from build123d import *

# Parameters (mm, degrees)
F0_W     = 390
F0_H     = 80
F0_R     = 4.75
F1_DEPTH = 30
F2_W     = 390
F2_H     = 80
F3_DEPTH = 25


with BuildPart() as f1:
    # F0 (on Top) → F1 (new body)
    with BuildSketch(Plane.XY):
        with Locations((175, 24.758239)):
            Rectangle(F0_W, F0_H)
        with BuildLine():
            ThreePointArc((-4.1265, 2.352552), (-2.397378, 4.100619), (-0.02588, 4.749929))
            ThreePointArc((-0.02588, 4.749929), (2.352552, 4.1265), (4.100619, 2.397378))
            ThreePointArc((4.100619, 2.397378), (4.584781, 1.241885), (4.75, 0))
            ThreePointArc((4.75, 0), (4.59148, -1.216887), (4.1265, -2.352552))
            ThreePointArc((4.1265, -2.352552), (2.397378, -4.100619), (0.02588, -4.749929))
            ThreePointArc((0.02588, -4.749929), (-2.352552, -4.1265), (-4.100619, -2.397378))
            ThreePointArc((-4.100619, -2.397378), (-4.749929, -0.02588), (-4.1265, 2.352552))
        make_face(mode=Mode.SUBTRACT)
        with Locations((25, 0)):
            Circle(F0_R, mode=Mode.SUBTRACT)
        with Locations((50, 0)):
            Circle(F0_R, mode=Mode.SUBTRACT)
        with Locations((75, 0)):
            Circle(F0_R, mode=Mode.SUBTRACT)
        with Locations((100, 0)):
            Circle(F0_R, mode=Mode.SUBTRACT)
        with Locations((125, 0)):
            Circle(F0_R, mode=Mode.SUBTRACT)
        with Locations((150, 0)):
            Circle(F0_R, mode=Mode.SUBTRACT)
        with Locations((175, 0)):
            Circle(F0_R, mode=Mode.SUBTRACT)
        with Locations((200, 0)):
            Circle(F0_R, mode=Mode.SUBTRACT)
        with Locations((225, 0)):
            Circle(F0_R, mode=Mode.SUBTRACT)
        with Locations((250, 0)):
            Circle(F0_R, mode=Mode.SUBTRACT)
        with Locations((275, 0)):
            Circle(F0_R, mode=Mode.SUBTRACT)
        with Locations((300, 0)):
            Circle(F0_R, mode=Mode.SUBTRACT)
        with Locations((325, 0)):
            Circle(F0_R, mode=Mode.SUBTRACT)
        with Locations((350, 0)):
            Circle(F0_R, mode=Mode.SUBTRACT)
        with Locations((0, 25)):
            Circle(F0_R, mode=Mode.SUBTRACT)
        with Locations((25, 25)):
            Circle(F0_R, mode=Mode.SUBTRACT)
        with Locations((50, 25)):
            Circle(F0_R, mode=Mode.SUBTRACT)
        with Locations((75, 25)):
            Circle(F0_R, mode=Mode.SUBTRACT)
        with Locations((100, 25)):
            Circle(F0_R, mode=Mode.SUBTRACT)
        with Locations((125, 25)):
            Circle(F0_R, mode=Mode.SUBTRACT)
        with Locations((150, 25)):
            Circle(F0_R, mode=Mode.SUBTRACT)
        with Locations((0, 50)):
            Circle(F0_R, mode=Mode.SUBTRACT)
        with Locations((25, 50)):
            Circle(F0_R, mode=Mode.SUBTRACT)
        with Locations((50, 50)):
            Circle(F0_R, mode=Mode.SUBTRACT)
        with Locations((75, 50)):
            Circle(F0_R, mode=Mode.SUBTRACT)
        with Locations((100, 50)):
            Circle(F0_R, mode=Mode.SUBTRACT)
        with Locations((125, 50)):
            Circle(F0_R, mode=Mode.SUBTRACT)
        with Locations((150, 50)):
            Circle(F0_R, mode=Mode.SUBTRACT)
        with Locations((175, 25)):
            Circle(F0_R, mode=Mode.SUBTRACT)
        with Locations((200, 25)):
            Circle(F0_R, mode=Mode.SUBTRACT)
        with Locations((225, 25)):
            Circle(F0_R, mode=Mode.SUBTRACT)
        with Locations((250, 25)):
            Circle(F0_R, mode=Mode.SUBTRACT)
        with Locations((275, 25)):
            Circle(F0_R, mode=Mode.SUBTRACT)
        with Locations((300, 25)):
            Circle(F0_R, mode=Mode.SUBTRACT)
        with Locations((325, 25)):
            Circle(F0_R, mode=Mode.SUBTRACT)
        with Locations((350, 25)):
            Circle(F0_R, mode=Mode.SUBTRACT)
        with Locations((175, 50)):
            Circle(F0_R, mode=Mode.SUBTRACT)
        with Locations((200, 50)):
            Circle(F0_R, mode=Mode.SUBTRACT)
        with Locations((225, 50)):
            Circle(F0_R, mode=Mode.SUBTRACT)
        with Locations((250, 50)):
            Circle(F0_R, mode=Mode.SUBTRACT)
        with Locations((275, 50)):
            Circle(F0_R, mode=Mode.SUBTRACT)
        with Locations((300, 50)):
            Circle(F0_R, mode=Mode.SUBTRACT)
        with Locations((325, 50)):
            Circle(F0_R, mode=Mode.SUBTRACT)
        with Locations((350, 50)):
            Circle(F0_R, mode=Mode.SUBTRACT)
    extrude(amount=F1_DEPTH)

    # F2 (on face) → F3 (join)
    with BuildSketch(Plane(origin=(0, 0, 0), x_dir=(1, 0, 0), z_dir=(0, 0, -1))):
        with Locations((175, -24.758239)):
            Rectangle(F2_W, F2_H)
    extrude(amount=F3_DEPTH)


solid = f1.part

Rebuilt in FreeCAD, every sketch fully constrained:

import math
import FreeCAD as App
import Part
import Sketcher

V = App.Vector
Q = App.Units.Quantity

doc = App.newDocument("Part")
params = doc.addObject("Spreadsheet::Sheet", "Params")
for row, (alias, value) in enumerate([
    ("sketch1_diameter", "9.5 mm"),
    ("sketch1_width", "390 mm"),
    ("sketch1_height", "80 mm"),
    ("pad1_length", "30 mm"),
    ("sketch2_width", "390 mm"),
    ("sketch2_height", "80 mm"),
    ("pad2_length", "25 mm"),
], start=1):
    params.set(f"A{row}", alias)
    params.set(f"B{row}", "=" + value)
    params.setAlias(f"B{row}", alias)

body = doc.addObject("PartDesign::Body", "Body")

# Sketch on XY plane
sketch1 = body.newObject("Sketcher::SketchObject", "Sketch")
sketch1.AttachmentSupport = (doc.getObject("XY_Plane"), [""])
sketch1.MapMode = "FlatFace"
sketch1.addGeometry([
    Part.LineSegment(V(-20, 64.758239, 0), V(-20, -15.241761, 0)),  # 0
    Part.LineSegment(V(-20, -15.241761, 0), V(370, -15.241761, 0)),  # 1
    Part.LineSegment(V(370, -15.241761, 0), V(370, 64.758239, 0)),  # 2
    Part.LineSegment(V(370, 64.758239, 0), V(-20, 64.758239, 0)),  # 3
    Part.ArcOfCircle(Part.Circle(V(0.000004, 0.000001, 0), V(0, 0, 1), 4.750003), math.radians(150.312206), math.radians(210.312165)),  # 4
    Part.ArcOfCircle(Part.Circle(V(0, -0.000002, 0), V(0, 0, 1), 4.750001), math.radians(90.312173), math.radians(150.312158)),  # 5
    Part.ArcOfCircle(Part.Circle(V(0.000003, 0.000005, 0), V(0, 0, 1), 4.749995), math.radians(30.312152), math.radians(90.312208)),  # 6
    Part.ArcOfCircle(Part.Circle(V(-0.00001, -0.000003, 0), V(0, 0, 1), 4.75001), math.radians(0.00004), math.radians(30.312154)),  # 7
    Part.ArcOfCircle(Part.Circle(V(0.000003, -0.000001, 0), V(0, 0, 1), 4.749997), math.radians(-29.687826), math.radians(0.000017)),  # 8
    Part.ArcOfCircle(Part.Circle(V(0, 0.000002, 0), V(0, 0, 1), 4.750001), math.radians(-89.687827), math.radians(-29.687842)),  # 9
    Part.ArcOfCircle(Part.Circle(V(-0.000003, -0.000005, 0), V(0, 0, 1), 4.749995), math.radians(-149.687848), math.radians(-89.687792)),  # 10
    Part.Circle(V(25, 0, 0), V(0, 0, 1), 4.75),  # 11
    Part.Circle(V(50, 0, 0), V(0, 0, 1), 4.75),  # 12
    Part.Circle(V(75, 0, 0), V(0, 0, 1), 4.75),  # 13
    Part.Circle(V(100, 0, 0), V(0, 0, 1), 4.75),  # 14
    Part.Circle(V(125, 0, 0), V(0, 0, 1), 4.75),  # 15
    Part.Circle(V(150, 0, 0), V(0, 0, 1), 4.75),  # 16
    Part.Circle(V(175, 0, 0), V(0, 0, 1), 4.75),  # 17
    Part.Circle(V(200, 0, 0), V(0, 0, 1), 4.75),  # 18
    Part.Circle(V(225, 0, 0), V(0, 0, 1), 4.75),  # 19
    Part.Circle(V(250, 0, 0), V(0, 0, 1), 4.75),  # 20
    Part.Circle(V(275, 0, 0), V(0, 0, 1), 4.75),  # 21
    Part.Circle(V(300, 0, 0), V(0, 0, 1), 4.75),  # 22
    Part.Circle(V(325, 0, 0), V(0, 0, 1), 4.75),  # 23
    Part.Circle(V(350, 0, 0), V(0, 0, 1), 4.75),  # 24
    Part.Circle(V(0, 25, 0), V(0, 0, 1), 4.75),  # 25
    Part.Circle(V(25, 25, 0), V(0, 0, 1), 4.75),  # 26
    Part.Circle(V(50, 25, 0), V(0, 0, 1), 4.75),  # 27
    Part.Circle(V(75, 25, 0), V(0, 0, 1), 4.75),  # 28
    Part.Circle(V(100, 25, 0), V(0, 0, 1), 4.75),  # 29
    Part.Circle(V(125, 25, 0), V(0, 0, 1), 4.75),  # 30
    Part.Circle(V(150, 25, 0), V(0, 0, 1), 4.75),  # 31
    Part.Circle(V(0, 50, 0), V(0, 0, 1), 4.75),  # 32
    Part.Circle(V(25, 50, 0), V(0, 0, 1), 4.75),  # 33
    Part.Circle(V(50, 50, 0), V(0, 0, 1), 4.75),  # 34
    Part.Circle(V(75, 50, 0), V(0, 0, 1), 4.75),  # 35
    Part.Circle(V(100, 50, 0), V(0, 0, 1), 4.75),  # 36
    Part.Circle(V(125, 50, 0), V(0, 0, 1), 4.75),  # 37
    Part.Circle(V(150, 50, 0), V(0, 0, 1), 4.75),  # 38
    Part.Circle(V(175, 25, 0), V(0, 0, 1), 4.75),  # 39
    Part.Circle(V(200, 25, 0), V(0, 0, 1), 4.75),  # 40
    Part.Circle(V(225, 25, 0), V(0, 0, 1), 4.75),  # 41
    Part.Circle(V(250, 25, 0), V(0, 0, 1), 4.75),  # 42
    Part.Circle(V(275, 25, 0), V(0, 0, 1), 4.75),  # 43
    Part.Circle(V(300, 25, 0), V(0, 0, 1), 4.75),  # 44
    Part.Circle(V(325, 25, 0), V(0, 0, 1), 4.75),  # 45
    Part.Circle(V(350, 25, 0), V(0, 0, 1), 4.75),  # 46
    Part.Circle(V(175, 50, 0), V(0, 0, 1), 4.75),  # 47
    Part.Circle(V(200, 50, 0), V(0, 0, 1), 4.75),  # 48
    Part.Circle(V(225, 50, 0), V(0, 0, 1), 4.75),  # 49
    Part.Circle(V(250, 50, 0), V(0, 0, 1), 4.75),  # 50
    Part.Circle(V(275, 50, 0), V(0, 0, 1), 4.75),  # 51
    Part.Circle(V(300, 50, 0), V(0, 0, 1), 4.75),  # 52
    Part.Circle(V(325, 50, 0), V(0, 0, 1), 4.75),  # 53
    Part.Circle(V(350, 50, 0), V(0, 0, 1), 4.75),  # 54
], False)
sketch1.addConstraint([
    Sketcher.Constraint("Coincident", 0, 2, 1, 1),
    Sketcher.Constraint("Coincident", 1, 2, 2, 1),
    Sketcher.Constraint("Coincident", 2, 2, 3, 1),
    Sketcher.Constraint("Coincident", 3, 2, 0, 1),
    Sketcher.Constraint("Tangent", 4, 1, 5, 2),
    Sketcher.Constraint("Tangent", 5, 1, 6, 2),
    Sketcher.Constraint("Tangent", 6, 1, 7, 2),
    Sketcher.Constraint("Tangent", 7, 1, 8, 2),
    Sketcher.Constraint("Tangent", 8, 1, 9, 2),
    Sketcher.Constraint("Tangent", 9, 1, 10, 2),
    Sketcher.Constraint("Tangent", 10, 1, 4, 2),
    Sketcher.Constraint("Vertical", 0),
    Sketcher.Constraint("Horizontal", 1),
    Sketcher.Constraint("Vertical", 2),
    Sketcher.Constraint("Horizontal", 3),
    Sketcher.Constraint("Coincident", 4, 3, -1, 1),
    Sketcher.Constraint("Coincident", 6, 3, -1, 1),
    Sketcher.Constraint("Coincident", 8, 3, -1, 1),
    Sketcher.Constraint("Equal", 9, 11),
    Sketcher.Constraint("Equal", 11, 12),
    Sketcher.Constraint("Equal", 12, 13),
    Sketcher.Constraint("Equal", 13, 14),
    Sketcher.Constraint("Equal", 14, 15),
    Sketcher.Constraint("Equal", 15, 16),
    Sketcher.Constraint("Equal", 16, 17),
    Sketcher.Constraint("Equal", 17, 18),
    Sketcher.Constraint("Equal", 18, 19),
    Sketcher.Constraint("Equal", 19, 20),
    Sketcher.Constraint("Equal", 20, 21),
    Sketcher.Constraint("Equal", 21, 22),
    Sketcher.Constraint("Equal", 22, 23),
    Sketcher.Constraint("Equal", 23, 24),
    Sketcher.Constraint("Equal", 24, 25),
    Sketcher.Constraint("Equal", 25, 26),
    Sketcher.Constraint("Equal", 26, 27),
    Sketcher.Constraint("Equal", 27, 28),
    Sketcher.Constraint("Equal", 28, 29),
    Sketcher.Constraint("Equal", 29, 30),
    Sketcher.Constraint("Equal", 30, 31),
    Sketcher.Constraint("Equal", 31, 32),
    Sketcher.Constraint("Equal", 32, 33),
    Sketcher.Constraint("Equal", 33, 34),
    Sketcher.Constraint("Equal", 34, 35),
    Sketcher.Constraint("Equal", 35, 36),
    Sketcher.Constraint("Equal", 36, 37),
    Sketcher.Constraint("Equal", 37, 38),
    Sketcher.Constraint("Equal", 38, 39),
    Sketcher.Constraint("Equal", 39, 40),
    Sketcher.Constraint("Equal", 40, 41),
    Sketcher.Constraint("Equal", 41, 42),
    Sketcher.Constraint("Equal", 42, 43),
    Sketcher.Constraint("Equal", 43, 44),
    Sketcher.Constraint("Equal", 44, 45),
    Sketcher.Constraint("Equal", 45, 46),
    Sketcher.Constraint("Equal", 46, 47),
    Sketcher.Constraint("Equal", 47, 48),
    Sketcher.Constraint("Equal", 48, 49),
    Sketcher.Constraint("Equal", 49, 50),
    Sketcher.Constraint("Equal", 50, 51),
    Sketcher.Constraint("Equal", 51, 52),
    Sketcher.Constraint("Equal", 52, 53),
    Sketcher.Constraint("Equal", 53, 54),
    Sketcher.Constraint("PointOnObject", 11, 3, -1),
    Sketcher.Constraint("PointOnObject", 12, 3, -1),
    Sketcher.Constraint("PointOnObject", 13, 3, -1),
    Sketcher.Constraint("PointOnObject", 14, 3, -1),
    Sketcher.Constraint("PointOnObject", 15, 3, -1),
    Sketcher.Constraint("PointOnObject", 16, 3, -1),
    Sketcher.Constraint("PointOnObject", 17, 3, -1),
    Sketcher.Constraint("PointOnObject", 18, 3, -1),
    Sketcher.Constraint("PointOnObject", 19, 3, -1),
    Sketcher.Constraint("PointOnObject", 20, 3, -1),
    Sketcher.Constraint("PointOnObject", 21, 3, -1),
    Sketcher.Constraint("PointOnObject", 22, 3, -1),
    Sketcher.Constraint("PointOnObject", 23, 3, -1),
    Sketcher.Constraint("PointOnObject", 24, 3, -1),
    Sketcher.Constraint("PointOnObject", 25, 3, -2),
    Sketcher.Constraint("PointOnObject", 32, 3, -2),
    Sketcher.Constraint("PointOnObject", 7, 1, -1),
    Sketcher.Constraint("Horizontal", 25, 3, 26, 3),
    Sketcher.Constraint("Horizontal", 26, 3, 27, 3),
    Sketcher.Constraint("Horizontal", 27, 3, 28, 3),
    Sketcher.Constraint("Horizontal", 28, 3, 29, 3),
    Sketcher.Constraint("Horizontal", 29, 3, 30, 3),
    Sketcher.Constraint("Horizontal", 30, 3, 31, 3),
    Sketcher.Constraint("Horizontal", 32, 3, 33, 3),
    Sketcher.Constraint("Horizontal", 33, 3, 34, 3),
    Sketcher.Constraint("Horizontal", 34, 3, 35, 3),
    Sketcher.Constraint("Horizontal", 35, 3, 36, 3),
    Sketcher.Constraint("Horizontal", 36, 3, 37, 3),
    Sketcher.Constraint("Horizontal", 37, 3, 38, 3),
    Sketcher.Constraint("Horizontal", 31, 3, 39, 3),
    Sketcher.Constraint("Horizontal", 39, 3, 40, 3),
    Sketcher.Constraint("Horizontal", 40, 3, 41, 3),
    Sketcher.Constraint("Horizontal", 41, 3, 42, 3),
    Sketcher.Constraint("Horizontal", 42, 3, 43, 3),
    Sketcher.Constraint("Horizontal", 43, 3, 44, 3),
    Sketcher.Constraint("Horizontal", 44, 3, 45, 3),
    Sketcher.Constraint("Horizontal", 45, 3, 46, 3),
    Sketcher.Constraint("Horizontal", 38, 3, 47, 3),
    Sketcher.Constraint("Horizontal", 47, 3, 48, 3),
    Sketcher.Constraint("Horizontal", 48, 3, 49, 3),
    Sketcher.Constraint("Horizontal", 49, 3, 50, 3),
    Sketcher.Constraint("Horizontal", 50, 3, 51, 3),
    Sketcher.Constraint("Horizontal", 51, 3, 52, 3),
    Sketcher.Constraint("Horizontal", 52, 3, 53, 3),
    Sketcher.Constraint("Horizontal", 53, 3, 54, 3),
    Sketcher.Constraint("Vertical", 11, 3, 26, 3),
    Sketcher.Constraint("Vertical", 12, 3, 27, 3),
    Sketcher.Constraint("Vertical", 13, 3, 28, 3),
    Sketcher.Constraint("Vertical", 14, 3, 29, 3),
    Sketcher.Constraint("Vertical", 15, 3, 30, 3),
    Sketcher.Constraint("Vertical", 16, 3, 31, 3),
    Sketcher.Constraint("Vertical", 26, 3, 33, 3),
    Sketcher.Constraint("Vertical", 27, 3, 34, 3),
    Sketcher.Constraint("Vertical", 28, 3, 35, 3),
    Sketcher.Constraint("Vertical", 29, 3, 36, 3),
    Sketcher.Constraint("Vertical", 30, 3, 37, 3),
    Sketcher.Constraint("Vertical", 31, 3, 38, 3),
    Sketcher.Constraint("Vertical", 17, 3, 39, 3),
    Sketcher.Constraint("Vertical", 18, 3, 40, 3),
    Sketcher.Constraint("Vertical", 19, 3, 41, 3),
    Sketcher.Constraint("Vertical", 20, 3, 42, 3),
    Sketcher.Constraint("Vertical", 21, 3, 43, 3),
    Sketcher.Constraint("Vertical", 22, 3, 44, 3),
    Sketcher.Constraint("Vertical", 23, 3, 45, 3),
    Sketcher.Constraint("Vertical", 24, 3, 46, 3),
    Sketcher.Constraint("Vertical", 39, 3, 47, 3),
    Sketcher.Constraint("Vertical", 40, 3, 48, 3),
    Sketcher.Constraint("Vertical", 41, 3, 49, 3),
    Sketcher.Constraint("Vertical", 42, 3, 50, 3),
    Sketcher.Constraint("Vertical", 43, 3, 51, 3),
    Sketcher.Constraint("Vertical", 44, 3, 52, 3),
    Sketcher.Constraint("Vertical", 45, 3, 53, 3),
    Sketcher.Constraint("Vertical", 46, 3, 54, 3),
    Sketcher.Constraint("Diameter", 11, Q("9.5 mm")),
    Sketcher.Constraint("DistanceX", 1, 1, 1, 2, Q("390 mm")),
    Sketcher.Constraint("DistanceY", 0, 2, 0, 1, Q("80 mm")),
    Sketcher.Constraint("DistanceX", -1, 1, 11, 3, Q("25 mm")),
    Sketcher.Constraint("DistanceX", -1, 1, 12, 3, Q("50 mm")),
    Sketcher.Constraint("DistanceX", -1, 1, 13, 3, Q("75 mm")),
    Sketcher.Constraint("DistanceX", -1, 1, 14, 3, Q("100 mm")),
    Sketcher.Constraint("DistanceX", -1, 1, 15, 3, Q("125 mm")),
    Sketcher.Constraint("DistanceX", -1, 1, 16, 3, Q("150 mm")),
    Sketcher.Constraint("DistanceX", -1, 1, 17, 3, Q("175 mm")),
    Sketcher.Constraint("DistanceX", -1, 1, 18, 3, Q("200 mm")),
    Sketcher.Constraint("DistanceX", -1, 1, 19, 3, Q("225 mm")),
    Sketcher.Constraint("DistanceX", -1, 1, 20, 3, Q("250 mm")),
    Sketcher.Constraint("DistanceX", -1, 1, 21, 3, Q("275 mm")),
    Sketcher.Constraint("DistanceX", -1, 1, 22, 3, Q("300 mm")),
    Sketcher.Constraint("DistanceX", -1, 1, 23, 3, Q("325 mm")),
    Sketcher.Constraint("DistanceX", -1, 1, 24, 3, Q("350 mm")),
    Sketcher.Constraint("DistanceY", -1, 1, 25, 3, Q("25 mm")),
    Sketcher.Constraint("DistanceY", -1, 1, 32, 3, Q("50 mm")),
    Sketcher.Constraint("DistanceX", 0, 2, -1, 1, Q("20 mm")),
    Sketcher.Constraint("DistanceX", 4, 1, -1, 1, Q("4.1265 mm")),
    Sketcher.Constraint("DistanceX", -1, 1, 8, 1, Q("4.1265 mm")),
    Sketcher.Constraint("DistanceY", 0, 2, -1, 1, Q("15.241761 mm")),
    Sketcher.Constraint("DistanceX", 5, 1, -1, 1, Q("0.02588 mm")),
    Sketcher.Constraint("DistanceX", -1, 1, 6, 1, Q("4.100619 mm")),
    Sketcher.Constraint("DistanceX", -1, 1, 9, 1, Q("0.02588 mm")),
    Sketcher.Constraint("DistanceX", 10, 1, -1, 1, Q("4.100619 mm")),
])
sketch1.setExpression("Constraints[135]", "Params.sketch1_diameter")
sketch1.setExpression("Constraints[136]", "Params.sketch1_width")
sketch1.setExpression("Constraints[137]", "Params.sketch1_height")
pad1 = body.newObject("PartDesign::Pad", "Pad")
pad1.Profile = sketch1
pad1.setExpression("Length", "Params.pad1_length")

# Sketch on XY plane
sketch2 = body.newObject("Sketcher::SketchObject", "Sketch001")
sketch2.AttachmentSupport = (doc.getObject("XY_Plane"), [""])
sketch2.MapMode = "FlatFace"
sketch2.addGeometry([
    Part.LineSegment(V(-20, -15.241761, 0), V(-20, 64.758239, 0)),
    Part.LineSegment(V(-20, 64.758239, 0), V(370, 64.758239, 0)),
    Part.LineSegment(V(370, 64.758239, 0), V(370, -15.241761, 0)),
    Part.LineSegment(V(370, -15.241761, 0), V(-20, -15.241761, 0)),
], False)
sketch2.addConstraint([
    Sketcher.Constraint("Coincident", 0, 2, 1, 1),
    Sketcher.Constraint("Coincident", 1, 2, 2, 1),
    Sketcher.Constraint("Coincident", 2, 2, 3, 1),
    Sketcher.Constraint("Coincident", 3, 2, 0, 1),
    Sketcher.Constraint("Vertical", 0),
    Sketcher.Constraint("Horizontal", 1),
    Sketcher.Constraint("Vertical", 2),
    Sketcher.Constraint("Horizontal", 3),
    Sketcher.Constraint("DistanceX", 1, 1, 1, 2, Q("390 mm")),
    Sketcher.Constraint("DistanceY", 0, 1, 0, 2, Q("80 mm")),
    Sketcher.Constraint("DistanceX", 0, 2, -1, 1, Q("20 mm")),
    Sketcher.Constraint("DistanceY", -1, 1, 0, 2, Q("64.758239 mm")),
])
sketch2.setExpression("Constraints[8]", "Params.sketch2_width")
sketch2.setExpression("Constraints[9]", "Params.sketch2_height")
pad2 = body.newObject("PartDesign::Pad", "Pad001")
pad2.Profile = sketch2
pad2.setExpression("Length", "Params.pad2_length")
pad2.Reversed = True

doc.recompute()
